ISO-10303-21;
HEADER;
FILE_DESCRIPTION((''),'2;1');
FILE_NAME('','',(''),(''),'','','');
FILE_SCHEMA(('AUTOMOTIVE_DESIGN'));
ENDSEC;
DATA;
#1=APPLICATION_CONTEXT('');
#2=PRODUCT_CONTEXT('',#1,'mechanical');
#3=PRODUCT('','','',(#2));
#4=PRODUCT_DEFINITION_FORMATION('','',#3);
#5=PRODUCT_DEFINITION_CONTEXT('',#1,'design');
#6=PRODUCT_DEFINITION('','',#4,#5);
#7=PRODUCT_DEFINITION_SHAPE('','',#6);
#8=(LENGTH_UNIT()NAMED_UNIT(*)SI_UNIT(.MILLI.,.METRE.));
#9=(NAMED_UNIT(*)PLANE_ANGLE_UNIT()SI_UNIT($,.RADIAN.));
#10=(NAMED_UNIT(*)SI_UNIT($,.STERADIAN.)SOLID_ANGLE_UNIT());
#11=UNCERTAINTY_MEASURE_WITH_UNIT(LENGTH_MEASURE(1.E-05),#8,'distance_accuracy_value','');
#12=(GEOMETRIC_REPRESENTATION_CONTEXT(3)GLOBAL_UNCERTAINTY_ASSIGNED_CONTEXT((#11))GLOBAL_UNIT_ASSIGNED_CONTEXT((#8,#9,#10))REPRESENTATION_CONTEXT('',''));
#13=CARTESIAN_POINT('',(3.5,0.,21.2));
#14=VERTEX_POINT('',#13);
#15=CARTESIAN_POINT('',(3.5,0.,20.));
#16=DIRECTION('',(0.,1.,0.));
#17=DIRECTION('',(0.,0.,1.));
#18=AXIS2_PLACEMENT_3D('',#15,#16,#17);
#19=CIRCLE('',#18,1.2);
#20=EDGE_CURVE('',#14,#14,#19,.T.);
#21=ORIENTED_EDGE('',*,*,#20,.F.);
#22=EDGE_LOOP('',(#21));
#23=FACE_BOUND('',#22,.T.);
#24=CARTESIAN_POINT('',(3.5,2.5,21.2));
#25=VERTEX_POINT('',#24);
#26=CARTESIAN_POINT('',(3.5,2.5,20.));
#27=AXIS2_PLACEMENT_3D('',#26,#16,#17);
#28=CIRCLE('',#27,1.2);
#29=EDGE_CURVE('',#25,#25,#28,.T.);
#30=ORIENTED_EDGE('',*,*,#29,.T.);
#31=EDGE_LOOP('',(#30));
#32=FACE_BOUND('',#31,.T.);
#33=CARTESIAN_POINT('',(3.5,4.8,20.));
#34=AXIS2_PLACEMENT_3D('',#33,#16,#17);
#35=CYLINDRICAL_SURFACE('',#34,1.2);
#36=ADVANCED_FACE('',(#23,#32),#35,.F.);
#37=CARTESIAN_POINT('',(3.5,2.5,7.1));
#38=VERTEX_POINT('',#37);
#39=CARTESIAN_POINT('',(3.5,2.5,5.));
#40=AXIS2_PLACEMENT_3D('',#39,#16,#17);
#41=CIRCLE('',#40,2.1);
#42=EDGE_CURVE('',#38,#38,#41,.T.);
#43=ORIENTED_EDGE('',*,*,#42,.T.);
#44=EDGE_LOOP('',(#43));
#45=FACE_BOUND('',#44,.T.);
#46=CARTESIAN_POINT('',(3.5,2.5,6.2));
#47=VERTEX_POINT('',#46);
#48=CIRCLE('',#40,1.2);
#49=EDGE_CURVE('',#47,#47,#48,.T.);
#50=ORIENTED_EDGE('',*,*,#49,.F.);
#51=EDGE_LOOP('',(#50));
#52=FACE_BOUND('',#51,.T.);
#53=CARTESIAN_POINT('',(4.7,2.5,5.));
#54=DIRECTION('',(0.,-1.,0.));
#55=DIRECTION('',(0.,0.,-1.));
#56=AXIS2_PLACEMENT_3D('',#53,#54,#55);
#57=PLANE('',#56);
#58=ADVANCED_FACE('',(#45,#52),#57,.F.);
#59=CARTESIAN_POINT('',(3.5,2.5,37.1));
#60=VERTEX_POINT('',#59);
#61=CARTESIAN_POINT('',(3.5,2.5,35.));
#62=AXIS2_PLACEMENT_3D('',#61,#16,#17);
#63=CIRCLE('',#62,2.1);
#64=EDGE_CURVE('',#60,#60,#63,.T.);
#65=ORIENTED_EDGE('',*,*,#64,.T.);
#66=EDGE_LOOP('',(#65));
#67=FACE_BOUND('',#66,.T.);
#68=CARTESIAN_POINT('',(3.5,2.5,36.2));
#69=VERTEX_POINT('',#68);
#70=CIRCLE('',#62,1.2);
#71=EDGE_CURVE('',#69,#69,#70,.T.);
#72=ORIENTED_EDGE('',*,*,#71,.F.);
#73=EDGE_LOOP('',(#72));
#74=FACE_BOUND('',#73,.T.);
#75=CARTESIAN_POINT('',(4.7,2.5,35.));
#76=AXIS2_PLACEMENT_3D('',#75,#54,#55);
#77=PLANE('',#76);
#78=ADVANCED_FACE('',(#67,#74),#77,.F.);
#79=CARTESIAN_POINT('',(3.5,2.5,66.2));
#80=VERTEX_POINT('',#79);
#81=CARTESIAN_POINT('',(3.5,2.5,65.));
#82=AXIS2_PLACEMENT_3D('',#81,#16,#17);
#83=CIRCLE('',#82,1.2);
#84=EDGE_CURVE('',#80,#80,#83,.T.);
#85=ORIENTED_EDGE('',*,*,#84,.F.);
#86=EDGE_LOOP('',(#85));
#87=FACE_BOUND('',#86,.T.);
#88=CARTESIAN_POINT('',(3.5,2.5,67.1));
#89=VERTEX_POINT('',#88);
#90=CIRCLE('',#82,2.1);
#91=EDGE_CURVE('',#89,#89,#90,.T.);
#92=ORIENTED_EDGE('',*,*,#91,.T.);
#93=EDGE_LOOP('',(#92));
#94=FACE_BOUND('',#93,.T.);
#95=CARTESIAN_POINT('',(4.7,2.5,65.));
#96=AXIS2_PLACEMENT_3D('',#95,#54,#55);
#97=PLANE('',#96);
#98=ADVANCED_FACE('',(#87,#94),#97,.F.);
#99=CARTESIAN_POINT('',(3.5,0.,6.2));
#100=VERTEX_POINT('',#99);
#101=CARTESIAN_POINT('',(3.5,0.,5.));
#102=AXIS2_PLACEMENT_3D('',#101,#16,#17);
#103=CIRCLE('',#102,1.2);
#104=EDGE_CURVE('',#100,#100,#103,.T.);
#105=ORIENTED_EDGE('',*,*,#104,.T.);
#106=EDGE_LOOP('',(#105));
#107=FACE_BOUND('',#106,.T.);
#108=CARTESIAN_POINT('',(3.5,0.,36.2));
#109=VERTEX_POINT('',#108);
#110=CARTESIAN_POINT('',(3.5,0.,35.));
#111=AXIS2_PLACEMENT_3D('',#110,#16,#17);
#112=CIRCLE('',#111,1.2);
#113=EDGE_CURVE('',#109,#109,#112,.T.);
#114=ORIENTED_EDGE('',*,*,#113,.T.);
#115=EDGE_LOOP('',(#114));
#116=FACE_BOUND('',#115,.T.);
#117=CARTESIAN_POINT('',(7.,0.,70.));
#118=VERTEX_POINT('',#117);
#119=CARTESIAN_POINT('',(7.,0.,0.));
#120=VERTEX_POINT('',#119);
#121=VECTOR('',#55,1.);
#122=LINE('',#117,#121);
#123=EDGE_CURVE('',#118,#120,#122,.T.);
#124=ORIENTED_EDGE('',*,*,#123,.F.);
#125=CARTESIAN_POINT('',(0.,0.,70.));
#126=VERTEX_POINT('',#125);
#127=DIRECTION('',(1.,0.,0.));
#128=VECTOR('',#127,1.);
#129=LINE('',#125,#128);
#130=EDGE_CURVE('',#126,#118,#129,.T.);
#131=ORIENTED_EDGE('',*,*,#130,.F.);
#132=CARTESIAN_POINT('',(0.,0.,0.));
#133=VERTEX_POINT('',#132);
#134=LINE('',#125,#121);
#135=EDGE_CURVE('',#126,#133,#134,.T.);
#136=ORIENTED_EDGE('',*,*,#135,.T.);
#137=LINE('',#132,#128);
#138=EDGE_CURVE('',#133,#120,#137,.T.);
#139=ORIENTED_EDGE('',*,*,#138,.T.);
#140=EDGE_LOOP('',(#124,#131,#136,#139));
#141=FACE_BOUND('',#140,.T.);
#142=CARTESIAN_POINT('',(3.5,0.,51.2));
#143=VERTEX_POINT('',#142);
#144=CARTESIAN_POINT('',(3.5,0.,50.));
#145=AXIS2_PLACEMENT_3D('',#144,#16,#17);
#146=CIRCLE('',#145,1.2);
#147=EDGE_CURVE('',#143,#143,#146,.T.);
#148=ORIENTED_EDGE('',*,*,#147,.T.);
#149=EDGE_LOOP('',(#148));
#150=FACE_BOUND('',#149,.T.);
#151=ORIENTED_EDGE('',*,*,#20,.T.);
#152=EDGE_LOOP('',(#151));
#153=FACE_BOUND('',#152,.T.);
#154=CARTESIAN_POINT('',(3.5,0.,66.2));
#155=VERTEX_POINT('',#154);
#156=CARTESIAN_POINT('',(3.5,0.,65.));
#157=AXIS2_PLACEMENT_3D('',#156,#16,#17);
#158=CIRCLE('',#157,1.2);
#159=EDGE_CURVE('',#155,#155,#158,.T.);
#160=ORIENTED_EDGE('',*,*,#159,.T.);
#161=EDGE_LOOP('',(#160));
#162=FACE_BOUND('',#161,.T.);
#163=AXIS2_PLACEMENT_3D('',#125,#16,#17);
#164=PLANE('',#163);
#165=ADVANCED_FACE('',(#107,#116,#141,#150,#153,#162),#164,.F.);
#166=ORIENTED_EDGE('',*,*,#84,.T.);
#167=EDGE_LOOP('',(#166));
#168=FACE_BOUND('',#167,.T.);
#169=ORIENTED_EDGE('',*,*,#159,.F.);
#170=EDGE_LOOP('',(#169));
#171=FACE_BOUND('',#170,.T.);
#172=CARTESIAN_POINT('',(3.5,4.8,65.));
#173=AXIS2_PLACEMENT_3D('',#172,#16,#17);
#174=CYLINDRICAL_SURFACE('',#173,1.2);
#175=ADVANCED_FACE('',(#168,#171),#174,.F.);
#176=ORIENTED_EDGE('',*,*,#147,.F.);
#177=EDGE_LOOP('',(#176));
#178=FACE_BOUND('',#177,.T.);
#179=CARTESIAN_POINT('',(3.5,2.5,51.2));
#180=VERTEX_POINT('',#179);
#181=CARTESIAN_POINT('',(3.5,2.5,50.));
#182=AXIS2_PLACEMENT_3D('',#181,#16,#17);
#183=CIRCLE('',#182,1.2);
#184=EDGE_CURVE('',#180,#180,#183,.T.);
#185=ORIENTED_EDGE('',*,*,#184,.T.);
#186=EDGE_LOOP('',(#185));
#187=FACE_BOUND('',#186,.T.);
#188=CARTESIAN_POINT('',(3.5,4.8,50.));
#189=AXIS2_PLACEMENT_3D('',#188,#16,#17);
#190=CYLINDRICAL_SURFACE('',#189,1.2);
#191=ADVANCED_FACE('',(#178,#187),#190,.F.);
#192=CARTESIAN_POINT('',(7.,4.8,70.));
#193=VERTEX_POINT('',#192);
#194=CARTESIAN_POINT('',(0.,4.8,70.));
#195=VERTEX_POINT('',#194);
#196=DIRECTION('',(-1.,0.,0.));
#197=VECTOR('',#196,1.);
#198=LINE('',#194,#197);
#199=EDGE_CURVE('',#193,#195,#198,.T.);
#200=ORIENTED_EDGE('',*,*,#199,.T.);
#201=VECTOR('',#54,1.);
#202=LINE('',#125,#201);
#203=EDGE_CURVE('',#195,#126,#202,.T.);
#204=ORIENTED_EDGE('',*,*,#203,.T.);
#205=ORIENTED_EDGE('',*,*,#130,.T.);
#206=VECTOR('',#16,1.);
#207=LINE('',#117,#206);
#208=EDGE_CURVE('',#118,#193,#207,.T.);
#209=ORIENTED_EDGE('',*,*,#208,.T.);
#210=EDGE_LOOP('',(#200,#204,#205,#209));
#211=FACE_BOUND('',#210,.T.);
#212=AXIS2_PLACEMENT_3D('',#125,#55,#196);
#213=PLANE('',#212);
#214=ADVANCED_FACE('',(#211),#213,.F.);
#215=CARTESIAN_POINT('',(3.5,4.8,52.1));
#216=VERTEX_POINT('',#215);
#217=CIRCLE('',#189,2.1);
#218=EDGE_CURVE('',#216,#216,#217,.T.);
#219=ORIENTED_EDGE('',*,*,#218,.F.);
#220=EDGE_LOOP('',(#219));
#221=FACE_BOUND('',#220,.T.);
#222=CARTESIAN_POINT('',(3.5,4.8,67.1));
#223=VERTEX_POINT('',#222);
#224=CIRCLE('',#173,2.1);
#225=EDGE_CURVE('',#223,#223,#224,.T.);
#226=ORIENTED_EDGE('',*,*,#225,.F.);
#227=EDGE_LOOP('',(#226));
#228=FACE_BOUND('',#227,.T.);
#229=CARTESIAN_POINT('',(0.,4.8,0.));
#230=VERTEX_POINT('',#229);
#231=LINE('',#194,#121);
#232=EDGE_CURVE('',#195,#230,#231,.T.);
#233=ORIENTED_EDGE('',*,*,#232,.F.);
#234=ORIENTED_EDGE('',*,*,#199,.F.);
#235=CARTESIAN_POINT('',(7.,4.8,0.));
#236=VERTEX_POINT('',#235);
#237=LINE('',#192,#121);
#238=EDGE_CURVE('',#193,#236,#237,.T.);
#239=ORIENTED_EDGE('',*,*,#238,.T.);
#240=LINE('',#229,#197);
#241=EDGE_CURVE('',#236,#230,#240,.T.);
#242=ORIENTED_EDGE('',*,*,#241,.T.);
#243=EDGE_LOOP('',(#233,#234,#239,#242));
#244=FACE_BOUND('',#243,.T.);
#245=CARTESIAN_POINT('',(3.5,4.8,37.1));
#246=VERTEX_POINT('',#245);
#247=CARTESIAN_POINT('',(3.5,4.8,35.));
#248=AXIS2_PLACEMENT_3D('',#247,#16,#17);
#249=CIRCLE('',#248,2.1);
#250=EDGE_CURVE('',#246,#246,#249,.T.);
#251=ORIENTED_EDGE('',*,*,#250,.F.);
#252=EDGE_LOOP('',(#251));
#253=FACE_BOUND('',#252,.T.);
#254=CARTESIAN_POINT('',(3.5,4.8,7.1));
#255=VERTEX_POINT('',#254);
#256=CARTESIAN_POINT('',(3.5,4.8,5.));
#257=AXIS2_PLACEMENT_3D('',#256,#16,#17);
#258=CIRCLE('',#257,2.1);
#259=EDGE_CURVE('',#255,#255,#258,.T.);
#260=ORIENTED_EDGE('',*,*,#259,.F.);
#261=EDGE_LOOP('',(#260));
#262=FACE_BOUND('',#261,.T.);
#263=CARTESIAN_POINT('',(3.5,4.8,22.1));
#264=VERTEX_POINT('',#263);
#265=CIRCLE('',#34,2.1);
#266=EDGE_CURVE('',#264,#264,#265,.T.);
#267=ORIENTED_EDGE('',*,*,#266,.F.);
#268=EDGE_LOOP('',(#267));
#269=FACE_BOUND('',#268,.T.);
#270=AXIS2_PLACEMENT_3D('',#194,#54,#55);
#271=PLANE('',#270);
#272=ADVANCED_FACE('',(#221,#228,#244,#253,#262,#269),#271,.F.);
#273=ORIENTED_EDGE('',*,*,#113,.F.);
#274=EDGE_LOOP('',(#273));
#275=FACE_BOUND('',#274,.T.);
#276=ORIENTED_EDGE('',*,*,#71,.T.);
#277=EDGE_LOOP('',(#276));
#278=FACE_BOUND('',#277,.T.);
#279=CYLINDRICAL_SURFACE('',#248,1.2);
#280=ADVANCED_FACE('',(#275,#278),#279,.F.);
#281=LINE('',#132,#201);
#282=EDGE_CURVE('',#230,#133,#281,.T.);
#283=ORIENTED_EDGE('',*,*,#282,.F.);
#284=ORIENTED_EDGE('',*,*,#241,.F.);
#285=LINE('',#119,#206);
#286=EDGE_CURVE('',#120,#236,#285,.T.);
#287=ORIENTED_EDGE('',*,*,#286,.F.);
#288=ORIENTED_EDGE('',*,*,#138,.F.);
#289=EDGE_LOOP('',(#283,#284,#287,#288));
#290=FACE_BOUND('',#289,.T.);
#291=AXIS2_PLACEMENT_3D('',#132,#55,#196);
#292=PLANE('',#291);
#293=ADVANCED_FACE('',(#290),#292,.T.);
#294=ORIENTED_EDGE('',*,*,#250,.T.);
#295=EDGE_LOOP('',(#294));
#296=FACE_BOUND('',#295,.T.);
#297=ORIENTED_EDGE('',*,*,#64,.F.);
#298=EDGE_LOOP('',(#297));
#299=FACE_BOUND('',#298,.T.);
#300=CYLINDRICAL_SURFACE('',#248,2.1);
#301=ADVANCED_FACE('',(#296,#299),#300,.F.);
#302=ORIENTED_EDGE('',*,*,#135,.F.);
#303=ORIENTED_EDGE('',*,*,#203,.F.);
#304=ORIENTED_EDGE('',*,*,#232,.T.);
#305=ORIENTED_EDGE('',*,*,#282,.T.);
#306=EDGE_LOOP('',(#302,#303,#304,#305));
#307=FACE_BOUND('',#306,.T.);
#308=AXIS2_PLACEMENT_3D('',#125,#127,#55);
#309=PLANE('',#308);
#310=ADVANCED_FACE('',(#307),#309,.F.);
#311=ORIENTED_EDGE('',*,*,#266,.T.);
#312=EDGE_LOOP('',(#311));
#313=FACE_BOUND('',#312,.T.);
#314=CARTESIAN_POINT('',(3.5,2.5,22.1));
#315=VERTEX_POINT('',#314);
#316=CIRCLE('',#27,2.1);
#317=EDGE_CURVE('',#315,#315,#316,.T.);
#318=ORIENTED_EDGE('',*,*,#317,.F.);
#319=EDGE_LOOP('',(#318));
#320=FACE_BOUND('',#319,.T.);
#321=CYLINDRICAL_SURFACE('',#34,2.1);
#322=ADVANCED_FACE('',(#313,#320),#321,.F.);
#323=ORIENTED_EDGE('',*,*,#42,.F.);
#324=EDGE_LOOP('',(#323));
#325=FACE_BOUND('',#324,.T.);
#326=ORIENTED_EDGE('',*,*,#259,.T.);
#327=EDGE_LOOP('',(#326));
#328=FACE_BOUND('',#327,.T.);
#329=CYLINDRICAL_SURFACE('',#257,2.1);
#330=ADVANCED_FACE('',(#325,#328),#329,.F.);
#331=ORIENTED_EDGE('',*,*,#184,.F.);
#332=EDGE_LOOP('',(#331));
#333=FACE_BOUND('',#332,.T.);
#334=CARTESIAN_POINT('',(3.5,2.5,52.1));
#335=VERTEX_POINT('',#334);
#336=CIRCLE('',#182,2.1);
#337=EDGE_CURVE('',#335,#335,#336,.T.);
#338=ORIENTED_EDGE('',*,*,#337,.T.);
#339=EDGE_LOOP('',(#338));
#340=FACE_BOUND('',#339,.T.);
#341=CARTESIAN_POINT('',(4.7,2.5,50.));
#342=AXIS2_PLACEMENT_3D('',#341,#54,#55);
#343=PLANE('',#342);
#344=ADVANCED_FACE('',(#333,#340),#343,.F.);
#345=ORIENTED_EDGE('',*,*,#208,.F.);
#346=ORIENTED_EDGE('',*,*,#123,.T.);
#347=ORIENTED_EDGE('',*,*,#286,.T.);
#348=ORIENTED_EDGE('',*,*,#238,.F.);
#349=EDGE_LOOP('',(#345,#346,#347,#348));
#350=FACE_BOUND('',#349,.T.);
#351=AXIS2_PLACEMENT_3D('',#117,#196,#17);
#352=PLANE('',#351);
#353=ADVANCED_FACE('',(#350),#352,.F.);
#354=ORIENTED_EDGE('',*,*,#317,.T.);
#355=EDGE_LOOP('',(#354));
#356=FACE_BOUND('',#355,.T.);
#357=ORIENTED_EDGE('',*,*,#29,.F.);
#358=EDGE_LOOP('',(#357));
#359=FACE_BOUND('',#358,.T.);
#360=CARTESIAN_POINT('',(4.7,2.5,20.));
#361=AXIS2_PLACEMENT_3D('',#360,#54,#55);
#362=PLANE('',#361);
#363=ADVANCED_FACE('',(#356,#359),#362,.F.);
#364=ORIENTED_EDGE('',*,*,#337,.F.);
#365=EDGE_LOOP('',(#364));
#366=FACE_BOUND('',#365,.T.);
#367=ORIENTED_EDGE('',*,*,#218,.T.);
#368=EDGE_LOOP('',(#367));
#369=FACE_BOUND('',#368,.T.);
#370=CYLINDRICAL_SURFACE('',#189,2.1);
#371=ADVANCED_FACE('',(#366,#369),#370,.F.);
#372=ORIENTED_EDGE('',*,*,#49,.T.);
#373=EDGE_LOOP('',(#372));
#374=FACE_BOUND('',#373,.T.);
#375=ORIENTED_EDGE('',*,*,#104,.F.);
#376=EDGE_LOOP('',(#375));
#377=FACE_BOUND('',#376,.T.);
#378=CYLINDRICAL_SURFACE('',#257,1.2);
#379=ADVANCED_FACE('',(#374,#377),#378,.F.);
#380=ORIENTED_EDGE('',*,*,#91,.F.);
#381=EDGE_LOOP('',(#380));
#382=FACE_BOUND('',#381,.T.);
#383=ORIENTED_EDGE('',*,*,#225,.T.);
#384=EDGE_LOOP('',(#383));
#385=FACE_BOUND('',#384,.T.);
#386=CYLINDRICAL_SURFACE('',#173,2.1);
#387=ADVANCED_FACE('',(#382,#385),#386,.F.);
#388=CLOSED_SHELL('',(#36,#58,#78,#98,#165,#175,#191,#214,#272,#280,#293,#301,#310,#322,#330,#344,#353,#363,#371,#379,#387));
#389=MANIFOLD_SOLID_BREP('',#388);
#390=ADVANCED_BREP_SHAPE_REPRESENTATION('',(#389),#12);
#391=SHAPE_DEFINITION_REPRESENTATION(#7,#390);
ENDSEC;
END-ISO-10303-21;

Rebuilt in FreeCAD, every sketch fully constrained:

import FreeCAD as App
import Part
import Sketcher
Q = App.Units.Quantity


def add_polygon(sketch, points):
    """Adds a closed chain of lines whose ends are joined by coincident constraints."""
    first, n = sketch.GeometryCount, len(points)
    for a, b in zip(points, points[1:] + points[:1]):
        sketch.addGeometry(Part.LineSegment(App.Vector(*a, 0), App.Vector(*b, 0)), False)
    for i in range(n):
        sketch.addConstraint(Sketcher.Constraint("Coincident", first + i, 2, first + (i + 1) % n, 1))

doc = App.newDocument("Part")
body = doc.addObject("PartDesign::Body", "Body")

sketch1 = doc.addObject("Sketcher::SketchObject", "Sketch")
body.addObject(sketch1)
sketch1.AttachmentSupport = (doc.XY_Plane, [""])
sketch1.MapMode = "FlatFace"
add_polygon(sketch1, [(0, 4.8), (0, 0), (7, 0), (7, 4.8)])
sketch1.addConstraint(Sketcher.Constraint("Vertical", 0))
sketch1.addConstraint(Sketcher.Constraint("Horizontal", 1))
sketch1.addConstraint(Sketcher.Constraint("Vertical", 2))
sketch1.addConstraint(Sketcher.Constraint("Horizontal", 3))
sketch1.addConstraint(Sketcher.Constraint("Coincident", 0, 2, -1, 1))
sketch1.addConstraint(Sketcher.Constraint("DistanceX", 1, 1, 1, 2, Q("7 mm")))
sketch1.addConstraint(Sketcher.Constraint("DistanceY", 0, 2, 0, 1, Q("4.8 mm")))
pad1 = doc.addObject("PartDesign::Pad", "Pad")
body.addObject(pad1)
pad1.Profile = sketch1
pad1.Length = 70

sketch2 = doc.addObject("Sketcher::SketchObject", "Sketch001")
body.addObject(sketch2)
sketch2.AttachmentSupport = (doc.XZ_Plane, [""])
sketch2.MapMode = "FlatFace"
sketch2.AttachmentOffset = App.Placement(App.Vector(0, 0, -4.8), App.Rotation())
sketch2.addGeometry(Part.Circle(App.Vector(3.5, 65, 0), App.Vector(0, 0, 1), 1.2), False)
sketch2.addGeometry(Part.Circle(App.Vector(3.5, 50, 0), App.Vector(0, 0, 1), 1.2), False)
sketch2.addGeometry(Part.Circle(App.Vector(3.5, 35, 0), App.Vector(0, 0, 1), 1.2), False)
sketch2.addGeometry(Part.Circle(App.Vector(3.5, 20, 0), App.Vector(0, 0, 1), 1.2), False)
sketch2.addGeometry(Part.Circle(App.Vector(3.5, 5, 0), App.Vector(0, 0, 1), 1.2), False)
sketch2.addConstraint(Sketcher.Constraint("Equal", 0, 1))
sketch2.addConstraint(Sketcher.Constraint("Equal", 1, 2))
sketch2.addConstraint(Sketcher.Constraint("Equal", 2, 3))
sketch2.addConstraint(Sketcher.Constraint("Equal", 3, 4))
sketch2.addConstraint(Sketcher.Constraint("Vertical", 0, 3, 1, 3))
sketch2.addConstraint(Sketcher.Constraint("Vertical", 1, 3, 2, 3))
sketch2.addConstraint(Sketcher.Constraint("Vertical", 2, 3, 3, 3))
sketch2.addConstraint(Sketcher.Constraint("Vertical", 3, 3, 4, 3))
sketch2.addConstraint(Sketcher.Constraint("Diameter", 0, Q("2.4 mm")))
sketch2.addConstraint(Sketcher.Constraint("DistanceY", -1, 1, 0, 3, Q("65 mm")))
sketch2.addConstraint(Sketcher.Constraint("DistanceY", -1, 1, 1, 3, Q("50 mm")))
sketch2.addConstraint(Sketcher.Constraint("DistanceY", -1, 1, 2, 3, Q("35 mm")))
sketch2.addConstraint(Sketcher.Constraint("DistanceY", -1, 1, 3, 3, Q("20 mm")))
sketch2.addConstraint(Sketcher.Constraint("DistanceY", -1, 1, 4, 3, Q("5 mm")))
sketch2.addConstraint(Sketcher.Constraint("DistanceX", -1, 1, 0, 3, Q("3.5 mm")))
doc.recompute()
hole = doc.addObject("PartDesign::Hole", "Hole")
body.addObject(hole)
hole.Profile = sketch2
hole.ThreadType = "None"
hole.Diameter = 2.4
hole.DepthType = "ThroughAll"
hole.HoleCutType = "Counterbore"
hole.HoleCutDiameter = 4.2
hole.HoleCutDepth = 2.3
hole.Reversed = True

doc.recompute()
